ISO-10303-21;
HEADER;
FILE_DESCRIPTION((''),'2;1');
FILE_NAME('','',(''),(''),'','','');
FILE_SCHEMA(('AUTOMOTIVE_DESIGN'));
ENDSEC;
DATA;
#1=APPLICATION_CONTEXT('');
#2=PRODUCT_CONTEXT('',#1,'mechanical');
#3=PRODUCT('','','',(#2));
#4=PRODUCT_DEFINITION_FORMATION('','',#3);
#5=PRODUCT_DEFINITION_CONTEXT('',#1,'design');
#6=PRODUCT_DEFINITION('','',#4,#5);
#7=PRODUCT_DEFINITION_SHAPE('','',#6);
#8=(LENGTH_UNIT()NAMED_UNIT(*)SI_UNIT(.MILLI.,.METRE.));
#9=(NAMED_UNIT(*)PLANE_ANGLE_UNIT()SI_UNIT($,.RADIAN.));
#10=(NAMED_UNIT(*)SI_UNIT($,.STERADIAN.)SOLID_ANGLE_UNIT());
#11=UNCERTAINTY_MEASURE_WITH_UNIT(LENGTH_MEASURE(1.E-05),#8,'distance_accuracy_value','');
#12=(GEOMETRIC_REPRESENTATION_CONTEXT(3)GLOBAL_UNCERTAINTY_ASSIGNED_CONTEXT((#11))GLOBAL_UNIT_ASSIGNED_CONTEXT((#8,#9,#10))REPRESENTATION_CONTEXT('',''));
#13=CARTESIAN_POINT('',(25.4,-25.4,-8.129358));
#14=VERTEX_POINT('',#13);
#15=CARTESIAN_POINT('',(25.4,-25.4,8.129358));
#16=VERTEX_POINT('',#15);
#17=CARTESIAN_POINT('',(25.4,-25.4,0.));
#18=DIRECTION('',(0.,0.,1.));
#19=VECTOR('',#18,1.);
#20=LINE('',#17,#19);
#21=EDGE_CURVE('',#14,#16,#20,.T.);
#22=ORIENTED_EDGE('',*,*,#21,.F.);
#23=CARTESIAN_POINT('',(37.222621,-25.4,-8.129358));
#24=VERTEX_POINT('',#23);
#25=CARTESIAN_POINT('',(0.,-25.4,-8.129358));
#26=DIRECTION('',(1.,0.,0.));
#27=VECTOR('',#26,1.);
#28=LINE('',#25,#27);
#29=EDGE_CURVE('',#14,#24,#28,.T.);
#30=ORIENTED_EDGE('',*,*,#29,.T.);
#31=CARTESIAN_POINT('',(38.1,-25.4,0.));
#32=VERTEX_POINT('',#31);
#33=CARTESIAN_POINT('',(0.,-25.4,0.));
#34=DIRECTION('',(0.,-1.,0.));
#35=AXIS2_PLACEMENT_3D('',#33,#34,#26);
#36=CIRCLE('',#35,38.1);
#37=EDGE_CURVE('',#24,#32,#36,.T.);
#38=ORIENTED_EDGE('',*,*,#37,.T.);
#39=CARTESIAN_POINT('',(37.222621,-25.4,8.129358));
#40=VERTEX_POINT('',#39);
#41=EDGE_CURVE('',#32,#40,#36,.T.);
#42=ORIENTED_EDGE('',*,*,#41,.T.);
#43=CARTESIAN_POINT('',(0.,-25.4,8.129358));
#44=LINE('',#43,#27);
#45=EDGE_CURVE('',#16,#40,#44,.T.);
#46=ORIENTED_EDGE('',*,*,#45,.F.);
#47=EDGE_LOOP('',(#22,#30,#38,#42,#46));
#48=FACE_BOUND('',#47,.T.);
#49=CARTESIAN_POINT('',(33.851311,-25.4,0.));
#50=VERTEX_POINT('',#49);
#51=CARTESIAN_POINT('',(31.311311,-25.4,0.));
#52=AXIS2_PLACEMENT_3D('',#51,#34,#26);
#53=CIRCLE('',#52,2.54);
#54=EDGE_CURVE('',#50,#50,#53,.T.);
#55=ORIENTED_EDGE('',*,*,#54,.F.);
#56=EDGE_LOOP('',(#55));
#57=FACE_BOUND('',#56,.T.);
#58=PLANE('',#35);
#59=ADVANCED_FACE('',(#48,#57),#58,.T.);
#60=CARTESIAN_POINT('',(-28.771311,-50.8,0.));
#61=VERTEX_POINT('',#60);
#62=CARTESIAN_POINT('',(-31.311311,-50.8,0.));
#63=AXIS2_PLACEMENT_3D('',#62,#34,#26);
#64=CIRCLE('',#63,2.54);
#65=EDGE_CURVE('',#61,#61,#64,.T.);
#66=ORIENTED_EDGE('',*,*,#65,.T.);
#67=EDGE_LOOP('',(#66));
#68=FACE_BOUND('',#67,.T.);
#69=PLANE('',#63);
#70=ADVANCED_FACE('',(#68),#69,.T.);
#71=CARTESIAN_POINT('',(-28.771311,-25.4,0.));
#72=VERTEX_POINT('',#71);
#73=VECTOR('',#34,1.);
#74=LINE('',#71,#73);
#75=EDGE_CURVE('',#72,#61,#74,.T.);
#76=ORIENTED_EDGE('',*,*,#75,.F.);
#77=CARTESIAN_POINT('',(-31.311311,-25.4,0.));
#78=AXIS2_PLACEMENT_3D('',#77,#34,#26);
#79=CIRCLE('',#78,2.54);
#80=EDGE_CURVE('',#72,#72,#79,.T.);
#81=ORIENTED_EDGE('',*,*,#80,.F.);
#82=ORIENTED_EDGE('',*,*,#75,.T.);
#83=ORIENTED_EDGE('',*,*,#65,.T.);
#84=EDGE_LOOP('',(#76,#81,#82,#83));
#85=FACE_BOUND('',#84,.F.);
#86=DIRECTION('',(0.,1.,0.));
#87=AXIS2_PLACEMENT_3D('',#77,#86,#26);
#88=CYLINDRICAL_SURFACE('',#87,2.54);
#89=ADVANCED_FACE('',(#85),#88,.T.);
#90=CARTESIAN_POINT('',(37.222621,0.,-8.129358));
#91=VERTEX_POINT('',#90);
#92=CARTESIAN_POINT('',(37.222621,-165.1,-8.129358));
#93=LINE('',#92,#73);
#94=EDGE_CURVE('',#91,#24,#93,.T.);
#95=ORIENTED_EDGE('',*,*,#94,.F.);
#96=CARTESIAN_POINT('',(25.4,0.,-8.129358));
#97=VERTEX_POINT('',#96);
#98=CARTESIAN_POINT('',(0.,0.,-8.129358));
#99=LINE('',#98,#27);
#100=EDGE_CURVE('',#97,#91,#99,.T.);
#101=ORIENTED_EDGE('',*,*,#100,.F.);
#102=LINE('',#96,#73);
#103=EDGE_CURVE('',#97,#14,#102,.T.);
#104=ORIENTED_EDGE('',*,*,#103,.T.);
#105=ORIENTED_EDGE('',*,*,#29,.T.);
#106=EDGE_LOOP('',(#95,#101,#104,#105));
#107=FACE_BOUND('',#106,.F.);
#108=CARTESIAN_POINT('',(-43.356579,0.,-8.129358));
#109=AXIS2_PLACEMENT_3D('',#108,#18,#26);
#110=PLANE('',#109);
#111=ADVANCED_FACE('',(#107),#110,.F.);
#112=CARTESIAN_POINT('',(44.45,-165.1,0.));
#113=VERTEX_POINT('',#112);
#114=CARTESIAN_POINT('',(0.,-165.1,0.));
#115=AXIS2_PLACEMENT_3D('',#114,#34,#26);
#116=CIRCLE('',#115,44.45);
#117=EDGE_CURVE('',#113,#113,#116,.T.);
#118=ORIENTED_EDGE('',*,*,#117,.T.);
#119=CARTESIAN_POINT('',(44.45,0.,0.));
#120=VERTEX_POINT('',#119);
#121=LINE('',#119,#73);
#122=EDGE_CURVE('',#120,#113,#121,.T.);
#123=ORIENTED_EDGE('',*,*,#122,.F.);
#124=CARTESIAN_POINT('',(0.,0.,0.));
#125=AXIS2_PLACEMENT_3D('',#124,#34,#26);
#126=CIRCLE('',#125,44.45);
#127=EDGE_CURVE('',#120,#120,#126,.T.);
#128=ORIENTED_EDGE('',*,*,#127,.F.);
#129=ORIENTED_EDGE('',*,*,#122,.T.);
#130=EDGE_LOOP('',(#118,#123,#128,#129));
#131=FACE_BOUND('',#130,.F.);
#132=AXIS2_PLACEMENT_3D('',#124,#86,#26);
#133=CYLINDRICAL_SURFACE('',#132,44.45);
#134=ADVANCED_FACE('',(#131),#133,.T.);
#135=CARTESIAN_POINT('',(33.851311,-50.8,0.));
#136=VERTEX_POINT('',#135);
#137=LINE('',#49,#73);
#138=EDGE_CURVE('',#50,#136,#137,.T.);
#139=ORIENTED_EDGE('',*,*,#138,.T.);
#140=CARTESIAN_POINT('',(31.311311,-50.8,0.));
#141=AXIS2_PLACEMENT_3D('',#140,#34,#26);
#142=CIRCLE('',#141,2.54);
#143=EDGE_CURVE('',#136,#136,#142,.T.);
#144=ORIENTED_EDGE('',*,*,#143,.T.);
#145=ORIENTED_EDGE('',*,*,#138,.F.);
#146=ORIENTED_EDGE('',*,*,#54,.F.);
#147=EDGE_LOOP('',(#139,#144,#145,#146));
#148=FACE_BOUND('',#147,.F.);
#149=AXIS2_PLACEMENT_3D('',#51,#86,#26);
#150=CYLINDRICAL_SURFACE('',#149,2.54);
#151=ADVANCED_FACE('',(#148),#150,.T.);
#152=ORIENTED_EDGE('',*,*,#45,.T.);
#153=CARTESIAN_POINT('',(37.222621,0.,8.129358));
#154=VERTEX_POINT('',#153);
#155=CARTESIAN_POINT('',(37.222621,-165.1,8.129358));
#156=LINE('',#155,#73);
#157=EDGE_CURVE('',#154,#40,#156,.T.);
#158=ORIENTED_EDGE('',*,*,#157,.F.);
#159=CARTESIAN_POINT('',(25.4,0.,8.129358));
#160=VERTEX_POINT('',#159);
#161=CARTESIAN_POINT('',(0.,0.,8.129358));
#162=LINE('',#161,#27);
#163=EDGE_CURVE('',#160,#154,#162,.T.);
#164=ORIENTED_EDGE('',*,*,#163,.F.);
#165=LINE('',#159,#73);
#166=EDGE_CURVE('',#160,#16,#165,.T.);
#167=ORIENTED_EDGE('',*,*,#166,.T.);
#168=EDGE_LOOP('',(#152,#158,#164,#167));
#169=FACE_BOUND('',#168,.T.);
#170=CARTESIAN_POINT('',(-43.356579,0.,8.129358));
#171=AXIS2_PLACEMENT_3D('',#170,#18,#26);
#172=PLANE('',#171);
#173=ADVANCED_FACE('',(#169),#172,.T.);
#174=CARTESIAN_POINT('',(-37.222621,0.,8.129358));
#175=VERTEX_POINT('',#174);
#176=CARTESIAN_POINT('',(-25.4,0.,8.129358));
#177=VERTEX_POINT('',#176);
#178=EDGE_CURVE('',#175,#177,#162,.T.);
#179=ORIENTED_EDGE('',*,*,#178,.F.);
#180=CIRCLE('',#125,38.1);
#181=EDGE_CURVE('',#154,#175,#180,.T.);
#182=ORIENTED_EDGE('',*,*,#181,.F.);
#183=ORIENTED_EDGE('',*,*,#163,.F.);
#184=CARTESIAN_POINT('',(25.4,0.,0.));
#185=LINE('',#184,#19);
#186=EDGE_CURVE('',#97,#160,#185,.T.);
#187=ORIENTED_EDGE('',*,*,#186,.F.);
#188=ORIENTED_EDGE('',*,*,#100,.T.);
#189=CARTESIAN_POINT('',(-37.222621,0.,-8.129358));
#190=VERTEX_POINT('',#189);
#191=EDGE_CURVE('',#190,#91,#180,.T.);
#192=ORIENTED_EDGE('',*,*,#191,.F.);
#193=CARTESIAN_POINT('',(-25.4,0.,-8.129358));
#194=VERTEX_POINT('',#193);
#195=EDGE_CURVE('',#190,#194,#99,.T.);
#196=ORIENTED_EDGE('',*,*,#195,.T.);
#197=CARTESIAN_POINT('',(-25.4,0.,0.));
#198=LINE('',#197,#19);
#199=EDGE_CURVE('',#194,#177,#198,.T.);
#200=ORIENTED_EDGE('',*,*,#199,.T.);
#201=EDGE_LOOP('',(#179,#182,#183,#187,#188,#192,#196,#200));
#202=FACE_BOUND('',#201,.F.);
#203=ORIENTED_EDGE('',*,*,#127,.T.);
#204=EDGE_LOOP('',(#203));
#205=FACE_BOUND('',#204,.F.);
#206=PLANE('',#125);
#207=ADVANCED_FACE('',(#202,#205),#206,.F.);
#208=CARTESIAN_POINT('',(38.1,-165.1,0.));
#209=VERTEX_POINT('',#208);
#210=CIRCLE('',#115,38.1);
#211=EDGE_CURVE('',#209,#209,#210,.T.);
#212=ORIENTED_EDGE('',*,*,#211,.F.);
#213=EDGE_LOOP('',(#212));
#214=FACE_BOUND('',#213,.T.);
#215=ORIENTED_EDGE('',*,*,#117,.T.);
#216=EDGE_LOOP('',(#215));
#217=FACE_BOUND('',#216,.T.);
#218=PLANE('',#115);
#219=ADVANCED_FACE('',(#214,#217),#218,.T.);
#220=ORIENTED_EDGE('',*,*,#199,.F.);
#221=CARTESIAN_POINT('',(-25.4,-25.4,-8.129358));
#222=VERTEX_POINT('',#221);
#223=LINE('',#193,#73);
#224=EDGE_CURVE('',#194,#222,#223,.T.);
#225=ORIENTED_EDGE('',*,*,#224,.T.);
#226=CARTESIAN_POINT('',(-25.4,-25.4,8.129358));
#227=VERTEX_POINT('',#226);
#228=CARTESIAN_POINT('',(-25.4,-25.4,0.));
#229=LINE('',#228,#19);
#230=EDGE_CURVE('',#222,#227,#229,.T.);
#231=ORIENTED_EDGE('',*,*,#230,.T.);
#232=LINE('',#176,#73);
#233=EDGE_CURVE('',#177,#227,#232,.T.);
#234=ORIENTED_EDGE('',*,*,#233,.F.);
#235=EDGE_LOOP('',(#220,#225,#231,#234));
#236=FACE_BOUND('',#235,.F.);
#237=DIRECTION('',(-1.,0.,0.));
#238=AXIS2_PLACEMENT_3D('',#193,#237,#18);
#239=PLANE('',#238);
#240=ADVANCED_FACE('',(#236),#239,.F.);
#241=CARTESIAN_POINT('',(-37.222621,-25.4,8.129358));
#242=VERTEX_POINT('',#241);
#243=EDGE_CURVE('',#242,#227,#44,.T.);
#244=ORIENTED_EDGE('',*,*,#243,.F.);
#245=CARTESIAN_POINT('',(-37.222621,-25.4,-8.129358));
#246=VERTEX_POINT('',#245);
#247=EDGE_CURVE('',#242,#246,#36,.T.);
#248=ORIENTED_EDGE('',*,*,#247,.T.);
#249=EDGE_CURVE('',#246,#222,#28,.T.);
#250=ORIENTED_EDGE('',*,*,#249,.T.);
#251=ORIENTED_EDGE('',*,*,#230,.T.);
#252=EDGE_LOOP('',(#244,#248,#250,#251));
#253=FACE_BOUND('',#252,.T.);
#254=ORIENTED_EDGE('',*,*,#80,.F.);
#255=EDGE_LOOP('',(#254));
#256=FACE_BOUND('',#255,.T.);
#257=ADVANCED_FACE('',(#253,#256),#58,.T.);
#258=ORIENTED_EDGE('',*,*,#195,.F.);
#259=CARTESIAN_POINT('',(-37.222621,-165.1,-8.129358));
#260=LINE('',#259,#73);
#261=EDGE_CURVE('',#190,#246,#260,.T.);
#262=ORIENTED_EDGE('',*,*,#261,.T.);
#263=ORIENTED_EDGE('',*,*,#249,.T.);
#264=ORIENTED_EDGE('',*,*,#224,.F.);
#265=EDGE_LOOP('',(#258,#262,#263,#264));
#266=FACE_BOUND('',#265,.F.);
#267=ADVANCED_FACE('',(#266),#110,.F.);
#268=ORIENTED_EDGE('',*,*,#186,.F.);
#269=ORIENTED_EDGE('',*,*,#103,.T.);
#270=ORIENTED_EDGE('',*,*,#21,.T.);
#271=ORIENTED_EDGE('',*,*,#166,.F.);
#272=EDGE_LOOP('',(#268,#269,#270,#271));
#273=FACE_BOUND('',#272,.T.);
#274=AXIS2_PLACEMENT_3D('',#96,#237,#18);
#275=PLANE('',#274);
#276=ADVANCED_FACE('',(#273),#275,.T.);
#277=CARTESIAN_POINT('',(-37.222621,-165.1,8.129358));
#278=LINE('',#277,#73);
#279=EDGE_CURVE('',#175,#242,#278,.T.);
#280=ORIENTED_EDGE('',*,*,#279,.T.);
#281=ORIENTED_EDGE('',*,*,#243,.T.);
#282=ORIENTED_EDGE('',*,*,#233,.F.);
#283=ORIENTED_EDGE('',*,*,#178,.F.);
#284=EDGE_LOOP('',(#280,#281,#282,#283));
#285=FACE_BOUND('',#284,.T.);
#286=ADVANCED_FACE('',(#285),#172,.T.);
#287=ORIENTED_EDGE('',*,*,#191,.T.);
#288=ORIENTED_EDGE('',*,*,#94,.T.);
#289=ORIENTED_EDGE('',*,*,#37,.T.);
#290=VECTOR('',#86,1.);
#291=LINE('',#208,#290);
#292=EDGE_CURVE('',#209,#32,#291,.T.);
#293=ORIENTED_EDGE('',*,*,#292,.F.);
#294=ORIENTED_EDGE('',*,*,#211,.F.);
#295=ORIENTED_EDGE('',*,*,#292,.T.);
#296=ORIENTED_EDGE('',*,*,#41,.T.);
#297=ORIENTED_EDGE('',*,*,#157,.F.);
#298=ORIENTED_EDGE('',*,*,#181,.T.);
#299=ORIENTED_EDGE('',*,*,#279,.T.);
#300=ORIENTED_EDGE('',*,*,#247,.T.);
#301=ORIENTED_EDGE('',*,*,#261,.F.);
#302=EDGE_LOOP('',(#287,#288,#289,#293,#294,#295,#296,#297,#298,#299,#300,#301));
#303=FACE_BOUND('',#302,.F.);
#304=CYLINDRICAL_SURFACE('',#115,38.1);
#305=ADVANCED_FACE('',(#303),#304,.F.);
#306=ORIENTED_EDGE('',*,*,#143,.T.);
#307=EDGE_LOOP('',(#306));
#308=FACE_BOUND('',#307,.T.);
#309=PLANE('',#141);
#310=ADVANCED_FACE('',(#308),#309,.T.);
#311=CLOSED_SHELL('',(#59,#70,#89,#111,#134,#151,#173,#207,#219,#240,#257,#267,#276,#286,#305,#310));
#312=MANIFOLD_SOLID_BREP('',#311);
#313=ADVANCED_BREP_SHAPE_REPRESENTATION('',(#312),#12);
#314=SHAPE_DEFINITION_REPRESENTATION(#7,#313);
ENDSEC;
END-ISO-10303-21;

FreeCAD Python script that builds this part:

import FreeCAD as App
import Part
import Sketcher
Q = App.Units.Quantity


def add_polygon(sketch, points):
    """Adds a closed chain of lines whose ends are joined by coincident constraints."""
    first, n = sketch.GeometryCount, len(points)
    for a, b in zip(points, points[1:] + points[:1]):
        sketch.addGeometry(Part.LineSegment(App.Vector(*a, 0), App.Vector(*b, 0)), False)
    for i in range(n):
        sketch.addConstraint(Sketcher.Constraint("Coincident", first + i, 2, first + (i + 1) % n, 1))

doc = App.newDocument("Part")
params = doc.addObject("Spreadsheet::Sheet", "Params")
for row, (alias, value) in enumerate([
    ("sketch1_diameter", "3.5 in"),
    ("pad1_length", "6.5 in"),
    ("sketch2_diameter", "3 in"),
    ("pocket1_length", "10 in"),
    ("pad2_length", "1 in"),
    ("sketch4_width", "2 in"),
    ("pocket2_length", "1 in"),
    ("sketch5_diameter", "0.2 in"),
    ("pad3_length", "1 in"),
], start=1):
    params.set(f"A{row}", alias)
    params.set(f"B{row}", "=" + value)
    params.setAlias(f"B{row}", alias)

body = doc.addObject("PartDesign::Body", "Body")

# Sketch on XZ plane
sketch1 = doc.addObject("Sketcher::SketchObject", "Sketch")
body.addObject(sketch1)
sketch1.AttachmentSupport = (doc.XZ_Plane, [""])
sketch1.MapMode = "FlatFace"
sketch1.addGeometry(Part.Circle(App.Vector(0, 0, 0), App.Vector(0, 0, 1), 44), False)
sketch1.addConstraint(Sketcher.Constraint("Coincident", 0, 3, -1, 1))
sketch1.addConstraint(Sketcher.Constraint("Diameter", 0, Q("3.5 in")))
sketch1.setExpression("Constraints[1]", "Params.sketch1_diameter")
pad1 = doc.addObject("PartDesign::Pad", "Pad")
body.addObject(pad1)
pad1.Profile = sketch1
pad1.setExpression("Length", "Params.pad1_length")

# Sketch on XZ plane
sketch2 = doc.addObject("Sketcher::SketchObject", "Sketch001")
body.addObject(sketch2)
sketch2.AttachmentSupport = (doc.XZ_Plane, [""])
sketch2.MapMode = "FlatFace"
sketch2.AttachmentOffset = App.Placement(App.Vector(0, 0, 6.5 * 25.4), App.Rotation())
sketch2.addGeometry(Part.Circle(App.Vector(0, 0, 0), App.Vector(0, 0, 1), 38), False)
sketch2.addConstraint(Sketcher.Constraint("Coincident", 0, 3, -1, 1))
sketch2.addConstraint(Sketcher.Constraint("Diameter", 0, Q("3 in")))
sketch2.setExpression("Constraints[1]", "Params.sketch2_diameter")
pocket1 = doc.addObject("PartDesign::Pocket", "Pocket")
body.addObject(pocket1)
pocket1.Profile = sketch2
pocket1.setExpression("Length", "Params.pocket1_length")

# Sketch on XZ plane
sketch3 = doc.addObject("Sketcher::SketchObject", "Sketch002")
body.addObject(sketch3)
sketch3.AttachmentSupport = (doc.XZ_Plane, [""])
sketch3.MapMode = "FlatFace"
add_polygon(sketch3, [(-43, 8), (-43, -8), (43, -8), (43, 8)])  # lines 0-3
sketch3.addConstraint(Sketcher.Constraint("Vertical", 0))
sketch3.addConstraint(Sketcher.Constraint("Horizontal", 1))
sketch3.addConstraint(Sketcher.Constraint("Vertical", 2))
sketch3.addConstraint(Sketcher.Constraint("Horizontal", 3))
sketch3.addConstraint(Sketcher.Constraint("Symmetric", 0, 2, 2, 2, -1, 1))
sketch3.addConstraint(Sketcher.Constraint("DistanceX", 1, 1, 1, 2, Q("86.713158 mm")))
sketch3.addConstraint(Sketcher.Constraint("DistanceY", 0, 2, 0, 1, Q("16.258716 mm")))
pad2 = doc.addObject("PartDesign::Pad", "Pad001")
body.addObject(pad2)
pad2.Profile = sketch3
pad2.setExpression("Length", "Params.pad2_length")

# Sketch on XZ plane
sketch4 = doc.addObject("Sketcher::SketchObject", "Sketch003")
body.addObject(sketch4)
sketch4.AttachmentSupport = (doc.XZ_Plane, [""])
sketch4.MapMode = "FlatFace"
add_polygon(sketch4, [(25, 8), (25, -8), (-25, -8), (-25, 8)])  # lines 0-3
sketch4.addConstraint(Sketcher.Constraint("Vertical", 0))
sketch4.addConstraint(Sketcher.Constraint("Horizontal", 1))
sketch4.addConstraint(Sketcher.Constraint("Vertical", 2))
sketch4.addConstraint(Sketcher.Constraint("Horizontal", 3))
sketch4.addConstraint(Sketcher.Constraint("Symmetric", 0, 2, 2, 2, -1, 1))
sketch4.addConstraint(Sketcher.Constraint("DistanceX", 1, 2, 1, 1, Q("2 in")))
sketch4.addConstraint(Sketcher.Constraint("DistanceY", 0, 2, 0, 1, Q("16.258716 mm")))
sketch4.setExpression("Constraints[9]", "Params.sketch4_width")
pocket2 = doc.addObject("PartDesign::Pocket", "Pocket001")
body.addObject(pocket2)
pocket2.Profile = sketch4
pocket2.setExpression("Length", "Params.pocket2_length")
pocket2.Reversed = True

# Sketch on XZ plane
sketch5 = doc.addObject("Sketcher::SketchObject", "Sketch004")
body.addObject(sketch5)
sketch5.AttachmentSupport = (doc.XZ_Plane, [""])
sketch5.MapMode = "FlatFace"
sketch5.AttachmentOffset = App.Placement(App.Vector(0, 0, 1 * 25.4), App.Rotation())
sketch5.addGeometry(Part.Circle(App.Vector(31.3, 0, 0), App.Vector(0, 0, 1), 2.5), False)
sketch5.addGeometry(Part.Circle(App.Vector(-31.3, 0, 0), App.Vector(0, 0, 1), 2.5), False)
sketch5.addConstraint(Sketcher.Constraint("Equal", 0, 1))
sketch5.addConstraint(Sketcher.Constraint("Symmetric", 0, 3, 1, 3, -1, 1))
sketch5.addConstraint(Sketcher.Constraint("PointOnObject", 0, 3, -1))
sketch5.addConstraint(Sketcher.Constraint("Diameter", 0, Q("0.2 in")))
sketch5.addConstraint(Sketcher.Constraint("DistanceX", -1, 1, 0, 3, Q("31.311311 mm")))
sketch5.setExpression("Constraints[3]", "Params.sketch5_diameter")
pad3 = doc.addObject("PartDesign::Pad", "Pad002")
body.addObject(pad3)
pad3.Profile = sketch5
pad3.setExpression("Length", "Params.pad3_length")

doc.recompute()
